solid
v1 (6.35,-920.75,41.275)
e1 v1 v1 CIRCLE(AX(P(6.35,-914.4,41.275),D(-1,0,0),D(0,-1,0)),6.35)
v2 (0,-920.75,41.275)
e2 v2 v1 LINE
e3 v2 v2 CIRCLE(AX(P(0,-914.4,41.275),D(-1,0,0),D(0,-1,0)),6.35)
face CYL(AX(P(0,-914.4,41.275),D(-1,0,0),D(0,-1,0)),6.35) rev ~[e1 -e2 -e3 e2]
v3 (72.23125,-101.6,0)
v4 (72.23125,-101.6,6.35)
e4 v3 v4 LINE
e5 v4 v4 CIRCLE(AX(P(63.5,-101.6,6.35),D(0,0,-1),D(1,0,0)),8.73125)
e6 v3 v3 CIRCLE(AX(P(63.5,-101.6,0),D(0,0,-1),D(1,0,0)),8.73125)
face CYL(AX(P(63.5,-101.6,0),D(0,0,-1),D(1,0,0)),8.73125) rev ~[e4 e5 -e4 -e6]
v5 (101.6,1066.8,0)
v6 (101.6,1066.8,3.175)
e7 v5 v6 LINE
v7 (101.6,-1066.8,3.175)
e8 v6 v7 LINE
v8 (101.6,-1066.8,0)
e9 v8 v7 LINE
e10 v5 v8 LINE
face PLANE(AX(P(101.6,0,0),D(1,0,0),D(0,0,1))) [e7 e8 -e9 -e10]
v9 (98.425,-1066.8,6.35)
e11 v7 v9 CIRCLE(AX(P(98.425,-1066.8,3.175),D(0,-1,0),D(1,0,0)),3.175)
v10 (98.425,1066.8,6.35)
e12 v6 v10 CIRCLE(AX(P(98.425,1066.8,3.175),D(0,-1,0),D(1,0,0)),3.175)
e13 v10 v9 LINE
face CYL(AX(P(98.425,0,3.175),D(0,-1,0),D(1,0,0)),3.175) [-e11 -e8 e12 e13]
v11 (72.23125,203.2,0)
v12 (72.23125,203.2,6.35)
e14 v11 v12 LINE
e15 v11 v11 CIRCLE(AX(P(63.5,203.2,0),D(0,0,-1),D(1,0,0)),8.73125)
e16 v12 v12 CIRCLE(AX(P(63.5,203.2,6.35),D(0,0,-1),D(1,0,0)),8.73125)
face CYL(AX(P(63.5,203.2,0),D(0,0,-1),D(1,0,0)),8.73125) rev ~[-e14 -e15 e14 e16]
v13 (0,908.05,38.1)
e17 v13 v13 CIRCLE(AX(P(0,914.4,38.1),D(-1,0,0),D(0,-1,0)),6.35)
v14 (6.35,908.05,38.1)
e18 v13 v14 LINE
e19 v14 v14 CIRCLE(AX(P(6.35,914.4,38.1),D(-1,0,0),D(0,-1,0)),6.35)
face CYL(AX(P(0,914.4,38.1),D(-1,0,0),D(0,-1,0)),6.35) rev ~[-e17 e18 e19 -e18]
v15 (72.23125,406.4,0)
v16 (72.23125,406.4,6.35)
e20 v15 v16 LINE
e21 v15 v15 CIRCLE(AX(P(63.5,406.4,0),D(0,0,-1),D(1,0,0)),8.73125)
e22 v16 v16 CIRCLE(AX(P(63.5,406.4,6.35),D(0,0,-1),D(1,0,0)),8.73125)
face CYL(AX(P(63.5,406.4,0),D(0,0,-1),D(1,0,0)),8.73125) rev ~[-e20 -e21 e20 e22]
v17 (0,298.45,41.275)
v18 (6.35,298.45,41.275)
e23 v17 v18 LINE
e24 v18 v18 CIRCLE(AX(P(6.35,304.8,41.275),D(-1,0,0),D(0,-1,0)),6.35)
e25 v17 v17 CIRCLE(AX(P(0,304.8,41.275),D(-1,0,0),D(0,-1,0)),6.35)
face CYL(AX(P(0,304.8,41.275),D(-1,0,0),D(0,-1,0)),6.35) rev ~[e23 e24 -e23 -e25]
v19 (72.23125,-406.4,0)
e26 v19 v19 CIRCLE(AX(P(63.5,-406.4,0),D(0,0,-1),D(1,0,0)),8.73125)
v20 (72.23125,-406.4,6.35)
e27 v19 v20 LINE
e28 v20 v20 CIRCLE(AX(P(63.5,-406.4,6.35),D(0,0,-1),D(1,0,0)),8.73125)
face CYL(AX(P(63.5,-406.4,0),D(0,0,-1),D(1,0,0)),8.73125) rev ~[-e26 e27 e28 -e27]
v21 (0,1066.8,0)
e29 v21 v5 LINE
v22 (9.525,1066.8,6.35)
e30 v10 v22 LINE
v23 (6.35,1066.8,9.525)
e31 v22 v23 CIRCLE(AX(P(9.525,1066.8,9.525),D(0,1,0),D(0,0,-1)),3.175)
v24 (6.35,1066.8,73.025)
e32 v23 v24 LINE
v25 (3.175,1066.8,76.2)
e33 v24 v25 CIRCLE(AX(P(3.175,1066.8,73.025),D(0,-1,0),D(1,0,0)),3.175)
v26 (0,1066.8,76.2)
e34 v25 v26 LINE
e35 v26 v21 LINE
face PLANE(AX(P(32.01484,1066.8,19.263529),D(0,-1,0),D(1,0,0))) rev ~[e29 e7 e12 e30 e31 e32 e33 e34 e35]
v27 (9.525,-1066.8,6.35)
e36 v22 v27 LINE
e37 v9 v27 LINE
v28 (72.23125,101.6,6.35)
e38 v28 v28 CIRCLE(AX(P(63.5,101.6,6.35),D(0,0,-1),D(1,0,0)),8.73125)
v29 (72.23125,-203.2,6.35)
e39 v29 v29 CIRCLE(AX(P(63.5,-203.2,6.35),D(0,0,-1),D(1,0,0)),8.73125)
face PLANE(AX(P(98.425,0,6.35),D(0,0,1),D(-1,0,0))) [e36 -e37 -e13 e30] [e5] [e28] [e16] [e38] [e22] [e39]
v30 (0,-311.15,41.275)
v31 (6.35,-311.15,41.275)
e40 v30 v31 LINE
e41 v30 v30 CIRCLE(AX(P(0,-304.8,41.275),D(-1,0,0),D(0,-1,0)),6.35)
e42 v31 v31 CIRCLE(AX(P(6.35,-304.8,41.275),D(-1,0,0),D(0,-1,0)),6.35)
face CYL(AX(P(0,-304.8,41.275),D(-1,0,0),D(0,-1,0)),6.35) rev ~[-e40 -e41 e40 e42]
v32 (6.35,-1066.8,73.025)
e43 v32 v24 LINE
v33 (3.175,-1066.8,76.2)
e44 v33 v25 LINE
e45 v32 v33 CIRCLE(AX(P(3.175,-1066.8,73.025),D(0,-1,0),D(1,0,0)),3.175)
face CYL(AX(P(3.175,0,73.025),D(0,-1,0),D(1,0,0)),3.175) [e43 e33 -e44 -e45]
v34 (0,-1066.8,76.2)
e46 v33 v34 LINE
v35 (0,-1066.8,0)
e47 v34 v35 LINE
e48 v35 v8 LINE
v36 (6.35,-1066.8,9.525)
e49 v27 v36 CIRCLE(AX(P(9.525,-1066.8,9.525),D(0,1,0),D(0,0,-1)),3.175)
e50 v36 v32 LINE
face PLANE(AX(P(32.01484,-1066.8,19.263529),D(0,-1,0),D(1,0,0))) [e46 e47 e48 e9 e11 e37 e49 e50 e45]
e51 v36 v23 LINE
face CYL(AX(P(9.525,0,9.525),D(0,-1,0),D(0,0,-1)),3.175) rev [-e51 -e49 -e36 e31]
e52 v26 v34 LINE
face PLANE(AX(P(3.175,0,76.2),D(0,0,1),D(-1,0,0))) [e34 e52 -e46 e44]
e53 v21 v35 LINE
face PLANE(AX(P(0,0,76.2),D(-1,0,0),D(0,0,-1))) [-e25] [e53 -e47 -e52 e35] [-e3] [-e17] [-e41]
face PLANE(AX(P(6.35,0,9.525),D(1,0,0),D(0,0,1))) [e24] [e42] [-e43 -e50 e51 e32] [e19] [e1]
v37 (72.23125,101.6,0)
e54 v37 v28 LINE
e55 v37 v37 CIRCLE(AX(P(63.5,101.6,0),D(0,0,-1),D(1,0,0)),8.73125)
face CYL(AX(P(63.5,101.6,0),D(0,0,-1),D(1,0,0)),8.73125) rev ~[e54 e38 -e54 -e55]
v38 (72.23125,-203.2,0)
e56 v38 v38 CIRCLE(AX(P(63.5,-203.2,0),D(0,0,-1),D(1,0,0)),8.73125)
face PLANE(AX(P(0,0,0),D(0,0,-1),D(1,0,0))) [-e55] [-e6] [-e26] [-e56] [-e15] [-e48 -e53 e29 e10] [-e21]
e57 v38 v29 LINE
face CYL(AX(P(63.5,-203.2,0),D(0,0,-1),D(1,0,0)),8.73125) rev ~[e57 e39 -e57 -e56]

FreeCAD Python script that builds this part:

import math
import FreeCAD as App
import Part
import Sketcher
from FreeCAD import Vector
Q = App.Units.Quantity

doc = App.newDocument("Part")
body = doc.addObject("PartDesign::Body", "Body")

# Sketch on XZ plane
sketch1 = body.newObject("Sketcher::SketchObject", "Sketch")
sketch1.AttachmentSupport = (doc.getObject("XZ_Plane"), [""])
sketch1.MapMode = "FlatFace"
sketch1.addGeometry(Part.LineSegment(Vector(3.2, 76.2, 0), Vector(0, 76.2, 0)), False)
sketch1.addGeometry(Part.LineSegment(Vector(0, 76.2, 0), Vector(0, 0, 0)), False)
sketch1.addGeometry(Part.LineSegment(Vector(0, 0, 0), Vector(101.6, 0, 0)), False)
sketch1.addGeometry(Part.LineSegment(Vector(101.6, 0, 0), Vector(101.6, 3.2, 0)), False)
sketch1.addGeometry(Part.ArcOfCircle(Part.Circle(Vector(98.4, 3.2, 0), Vector(0, 0, 1), 3.2), math.radians(0), math.radians(90)), False)
sketch1.addGeometry(Part.LineSegment(Vector(98.4, 6.3, 0), Vector(9.5, 6.3, 0)), False)
sketch1.addGeometry(Part.ArcOfCircle(Part.Circle(Vector(9.5, 9.5, 0), Vector(0, 0, 1), 3.2), math.radians(180), math.radians(270)), False)
sketch1.addGeometry(Part.LineSegment(Vector(6.3, 9.5, 0), Vector(6.3, 73, 0)), False)
sketch1.addGeometry(Part.ArcOfCircle(Part.Circle(Vector(3.2, 73, 0), Vector(0, 0, 1), 3.2), math.radians(0), math.radians(90)), False)
sketch1.addConstraint(Sketcher.Constraint("Coincident", 0, 2, 1, 1))
sketch1.addConstraint(Sketcher.Constraint("Coincident", 1, 2, 2, 1))
sketch1.addConstraint(Sketcher.Constraint("Coincident", 2, 2, 3, 1))
sketch1.addConstraint(Sketcher.Constraint("Tangent", 3, 2, 4, 1))
sketch1.addConstraint(Sketcher.Constraint("Tangent", 4, 2, 5, 1))
sketch1.addConstraint(Sketcher.Constraint("Tangent", 5, 2, 6, 2))
sketch1.addConstraint(Sketcher.Constraint("Tangent", 6, 1, 7, 1))
sketch1.addConstraint(Sketcher.Constraint("Tangent", 7, 2, 8, 1))
sketch1.addConstraint(Sketcher.Constraint("Tangent", 8, 2, 0, 1))
sketch1.addConstraint(Sketcher.Constraint("Horizontal", 0))
sketch1.addConstraint(Sketcher.Constraint("Vertical", 1))
sketch1.addConstraint(Sketcher.Constraint("Horizontal", 2))
sketch1.addConstraint(Sketcher.Constraint("Vertical", 3))
sketch1.addConstraint(Sketcher.Constraint("Horizontal", 5))
sketch1.addConstraint(Sketcher.Constraint("Vertical", 7))
sketch1.addConstraint(Sketcher.Constraint("Coincident", 1, 2, -1, 1))
sketch1.addConstraint(Sketcher.Constraint("Equal", 4, 6))
sketch1.addConstraint(Sketcher.Constraint("Equal", 6, 8))
sketch1.addConstraint(Sketcher.Constraint("Equal", 0, 3))
sketch1.addConstraint(Sketcher.Constraint("DistanceX", 2, 1, 2, 2, Q("4 in")))
sketch1.addConstraint(Sketcher.Constraint("DistanceY", 1, 2, 1, 1, Q("3 in")))
sketch1.addConstraint(Sketcher.Constraint("DistanceX", 5, 2, 5, 1, Q("3.5 in")))
sketch1.addConstraint(Sketcher.Constraint("Radius", 4, Q("0.125 in")))
pad1 = body.newObject("PartDesign::Pad", "Pad")
pad1.Profile = sketch1
pad1.Length = Q("84 in")
pad1.Midplane = True

# Sketch on XY plane
sketch2 = body.newObject("Sketcher::SketchObject", "Sketch001")
sketch2.AttachmentSupport = (doc.getObject("XY_Plane"), [""])
sketch2.MapMode = "FlatFace"
sketch2.addGeometry(Part.Circle(Vector(64, 203, 0), Vector(0, 0, 1), 9), False)
sketch2.addGeometry(Part.Circle(Vector(64, 406, 0), Vector(0, 0, 1), 9), False)
sketch2.addGeometry(Part.Circle(Vector(64, 102, 0), Vector(0, 0, 1), 9), False)
sketch2.addGeometry(Part.Circle(Vector(64, -102, 0), Vector(0, 0, 1), 9), False)
sketch2.addGeometry(Part.Circle(Vector(64, -203, 0), Vector(0, 0, 1), 9), False)
sketch2.addGeometry(Part.Circle(Vector(64, -406, 0), Vector(0, 0, 1), 9), False)
sketch2.addConstraint(Sketcher.Constraint("Equal", 0, 1))
sketch2.addConstraint(Sketcher.Constraint("Equal", 1, 2))
sketch2.addConstraint(Sketcher.Constraint("Equal", 2, 3))
sketch2.addConstraint(Sketcher.Constraint("Equal", 3, 4))
sketch2.addConstraint(Sketcher.Constraint("Equal", 4, 5))
sketch2.addConstraint(Sketcher.Constraint("Symmetric", 2, 3, 3, 3, -1))
sketch2.addConstraint(Sketcher.Constraint("Symmetric", 0, 3, 4, 3, -1))
sketch2.addConstraint(Sketcher.Constraint("Symmetric", 1, 3, 5, 3, -1))
sketch2.addConstraint(Sketcher.Constraint("Vertical", 0, 3, 1, 3))
sketch2.addConstraint(Sketcher.Constraint("Vertical", 1, 3, 2, 3))
sketch2.addConstraint(Sketcher.Constraint("Diameter", 0, Q("0.6875 in")))
sketch2.addConstraint(Sketcher.Constraint("DistanceY", -1, 1, 0, 3, Q("8 in")))
sketch2.addConstraint(Sketcher.Constraint("DistanceY", -1, 1, 1, 3, Q("16 in")))
sketch2.addConstraint(Sketcher.Constraint("DistanceY", -1, 1, 2, 3, Q("4 in")))
sketch2.addConstraint(Sketcher.Constraint("DistanceX", -1, 1, 0, 3, Q("2.5 in")))
pocket1 = body.newObject("PartDesign::Pocket", "Pocket")
pocket1.Profile = sketch2
pocket1.Type = "ThroughAll"
pocket1.Reversed = True

# Sketch on YZ plane
sketch3 = body.newObject("Sketcher::SketchObject", "Sketch002")
sketch3.AttachmentSupport = (doc.getObject("YZ_Plane"), [""])
sketch3.MapMode = "FlatFace"
sketch3.addGeometry(Part.Circle(Vector(305, 41, 0), Vector(0, 0, 1), 6), False)
sketch3.addGeometry(Part.Circle(Vector(-305, 41, 0), Vector(0, 0, 1), 6), False)
sketch3.addGeometry(Part.Circle(Vector(914, 38, 0), Vector(0, 0, 1), 6), False)
sketch3.addGeometry(Part.Circle(Vector(-914, 41, 0), Vector(0, 0, 1), 6), False)
sketch3.addConstraint(Sketcher.Constraint("Equal", 0, 1))
sketch3.addConstraint(Sketcher.Constraint("Equal", 1, 2))
sketch3.addConstraint(Sketcher.Constraint("Equal", 2, 3))
sketch3.addConstraint(Sketcher.Constraint("Symmetric", 0, 3, 1, 3, -2))
sketch3.addConstraint(Sketcher.Constraint("Horizontal", 1, 3, 3, 3))
sketch3.addConstraint(Sketcher.Constraint("Diameter", 0, Q("0.5 in")))
sketch3.addConstraint(Sketcher.Constraint("DistanceX", -1, 1, 0, 3, Q("12 in")))
sketch3.addConstraint(Sketcher.Constraint("DistanceX", -1, 1, 2, 3, Q("36 in")))
sketch3.addConstraint(Sketcher.Constraint("DistanceX", 3, 3, -1, 1, Q("36 in")))
sketch3.addConstraint(Sketcher.Constraint("DistanceY", -1, 1, 2, 3, Q("1.5 in")))
sketch3.addConstraint(Sketcher.Constraint("DistanceY", -1, 1, 0, 3, Q("1.625 in")))
pocket2 = body.newObject("PartDesign::Pocket", "Pocket001")
pocket2.Profile = sketch3
pocket2.Type = "ThroughAll"
pocket2.Reversed = True

doc.recompute()
